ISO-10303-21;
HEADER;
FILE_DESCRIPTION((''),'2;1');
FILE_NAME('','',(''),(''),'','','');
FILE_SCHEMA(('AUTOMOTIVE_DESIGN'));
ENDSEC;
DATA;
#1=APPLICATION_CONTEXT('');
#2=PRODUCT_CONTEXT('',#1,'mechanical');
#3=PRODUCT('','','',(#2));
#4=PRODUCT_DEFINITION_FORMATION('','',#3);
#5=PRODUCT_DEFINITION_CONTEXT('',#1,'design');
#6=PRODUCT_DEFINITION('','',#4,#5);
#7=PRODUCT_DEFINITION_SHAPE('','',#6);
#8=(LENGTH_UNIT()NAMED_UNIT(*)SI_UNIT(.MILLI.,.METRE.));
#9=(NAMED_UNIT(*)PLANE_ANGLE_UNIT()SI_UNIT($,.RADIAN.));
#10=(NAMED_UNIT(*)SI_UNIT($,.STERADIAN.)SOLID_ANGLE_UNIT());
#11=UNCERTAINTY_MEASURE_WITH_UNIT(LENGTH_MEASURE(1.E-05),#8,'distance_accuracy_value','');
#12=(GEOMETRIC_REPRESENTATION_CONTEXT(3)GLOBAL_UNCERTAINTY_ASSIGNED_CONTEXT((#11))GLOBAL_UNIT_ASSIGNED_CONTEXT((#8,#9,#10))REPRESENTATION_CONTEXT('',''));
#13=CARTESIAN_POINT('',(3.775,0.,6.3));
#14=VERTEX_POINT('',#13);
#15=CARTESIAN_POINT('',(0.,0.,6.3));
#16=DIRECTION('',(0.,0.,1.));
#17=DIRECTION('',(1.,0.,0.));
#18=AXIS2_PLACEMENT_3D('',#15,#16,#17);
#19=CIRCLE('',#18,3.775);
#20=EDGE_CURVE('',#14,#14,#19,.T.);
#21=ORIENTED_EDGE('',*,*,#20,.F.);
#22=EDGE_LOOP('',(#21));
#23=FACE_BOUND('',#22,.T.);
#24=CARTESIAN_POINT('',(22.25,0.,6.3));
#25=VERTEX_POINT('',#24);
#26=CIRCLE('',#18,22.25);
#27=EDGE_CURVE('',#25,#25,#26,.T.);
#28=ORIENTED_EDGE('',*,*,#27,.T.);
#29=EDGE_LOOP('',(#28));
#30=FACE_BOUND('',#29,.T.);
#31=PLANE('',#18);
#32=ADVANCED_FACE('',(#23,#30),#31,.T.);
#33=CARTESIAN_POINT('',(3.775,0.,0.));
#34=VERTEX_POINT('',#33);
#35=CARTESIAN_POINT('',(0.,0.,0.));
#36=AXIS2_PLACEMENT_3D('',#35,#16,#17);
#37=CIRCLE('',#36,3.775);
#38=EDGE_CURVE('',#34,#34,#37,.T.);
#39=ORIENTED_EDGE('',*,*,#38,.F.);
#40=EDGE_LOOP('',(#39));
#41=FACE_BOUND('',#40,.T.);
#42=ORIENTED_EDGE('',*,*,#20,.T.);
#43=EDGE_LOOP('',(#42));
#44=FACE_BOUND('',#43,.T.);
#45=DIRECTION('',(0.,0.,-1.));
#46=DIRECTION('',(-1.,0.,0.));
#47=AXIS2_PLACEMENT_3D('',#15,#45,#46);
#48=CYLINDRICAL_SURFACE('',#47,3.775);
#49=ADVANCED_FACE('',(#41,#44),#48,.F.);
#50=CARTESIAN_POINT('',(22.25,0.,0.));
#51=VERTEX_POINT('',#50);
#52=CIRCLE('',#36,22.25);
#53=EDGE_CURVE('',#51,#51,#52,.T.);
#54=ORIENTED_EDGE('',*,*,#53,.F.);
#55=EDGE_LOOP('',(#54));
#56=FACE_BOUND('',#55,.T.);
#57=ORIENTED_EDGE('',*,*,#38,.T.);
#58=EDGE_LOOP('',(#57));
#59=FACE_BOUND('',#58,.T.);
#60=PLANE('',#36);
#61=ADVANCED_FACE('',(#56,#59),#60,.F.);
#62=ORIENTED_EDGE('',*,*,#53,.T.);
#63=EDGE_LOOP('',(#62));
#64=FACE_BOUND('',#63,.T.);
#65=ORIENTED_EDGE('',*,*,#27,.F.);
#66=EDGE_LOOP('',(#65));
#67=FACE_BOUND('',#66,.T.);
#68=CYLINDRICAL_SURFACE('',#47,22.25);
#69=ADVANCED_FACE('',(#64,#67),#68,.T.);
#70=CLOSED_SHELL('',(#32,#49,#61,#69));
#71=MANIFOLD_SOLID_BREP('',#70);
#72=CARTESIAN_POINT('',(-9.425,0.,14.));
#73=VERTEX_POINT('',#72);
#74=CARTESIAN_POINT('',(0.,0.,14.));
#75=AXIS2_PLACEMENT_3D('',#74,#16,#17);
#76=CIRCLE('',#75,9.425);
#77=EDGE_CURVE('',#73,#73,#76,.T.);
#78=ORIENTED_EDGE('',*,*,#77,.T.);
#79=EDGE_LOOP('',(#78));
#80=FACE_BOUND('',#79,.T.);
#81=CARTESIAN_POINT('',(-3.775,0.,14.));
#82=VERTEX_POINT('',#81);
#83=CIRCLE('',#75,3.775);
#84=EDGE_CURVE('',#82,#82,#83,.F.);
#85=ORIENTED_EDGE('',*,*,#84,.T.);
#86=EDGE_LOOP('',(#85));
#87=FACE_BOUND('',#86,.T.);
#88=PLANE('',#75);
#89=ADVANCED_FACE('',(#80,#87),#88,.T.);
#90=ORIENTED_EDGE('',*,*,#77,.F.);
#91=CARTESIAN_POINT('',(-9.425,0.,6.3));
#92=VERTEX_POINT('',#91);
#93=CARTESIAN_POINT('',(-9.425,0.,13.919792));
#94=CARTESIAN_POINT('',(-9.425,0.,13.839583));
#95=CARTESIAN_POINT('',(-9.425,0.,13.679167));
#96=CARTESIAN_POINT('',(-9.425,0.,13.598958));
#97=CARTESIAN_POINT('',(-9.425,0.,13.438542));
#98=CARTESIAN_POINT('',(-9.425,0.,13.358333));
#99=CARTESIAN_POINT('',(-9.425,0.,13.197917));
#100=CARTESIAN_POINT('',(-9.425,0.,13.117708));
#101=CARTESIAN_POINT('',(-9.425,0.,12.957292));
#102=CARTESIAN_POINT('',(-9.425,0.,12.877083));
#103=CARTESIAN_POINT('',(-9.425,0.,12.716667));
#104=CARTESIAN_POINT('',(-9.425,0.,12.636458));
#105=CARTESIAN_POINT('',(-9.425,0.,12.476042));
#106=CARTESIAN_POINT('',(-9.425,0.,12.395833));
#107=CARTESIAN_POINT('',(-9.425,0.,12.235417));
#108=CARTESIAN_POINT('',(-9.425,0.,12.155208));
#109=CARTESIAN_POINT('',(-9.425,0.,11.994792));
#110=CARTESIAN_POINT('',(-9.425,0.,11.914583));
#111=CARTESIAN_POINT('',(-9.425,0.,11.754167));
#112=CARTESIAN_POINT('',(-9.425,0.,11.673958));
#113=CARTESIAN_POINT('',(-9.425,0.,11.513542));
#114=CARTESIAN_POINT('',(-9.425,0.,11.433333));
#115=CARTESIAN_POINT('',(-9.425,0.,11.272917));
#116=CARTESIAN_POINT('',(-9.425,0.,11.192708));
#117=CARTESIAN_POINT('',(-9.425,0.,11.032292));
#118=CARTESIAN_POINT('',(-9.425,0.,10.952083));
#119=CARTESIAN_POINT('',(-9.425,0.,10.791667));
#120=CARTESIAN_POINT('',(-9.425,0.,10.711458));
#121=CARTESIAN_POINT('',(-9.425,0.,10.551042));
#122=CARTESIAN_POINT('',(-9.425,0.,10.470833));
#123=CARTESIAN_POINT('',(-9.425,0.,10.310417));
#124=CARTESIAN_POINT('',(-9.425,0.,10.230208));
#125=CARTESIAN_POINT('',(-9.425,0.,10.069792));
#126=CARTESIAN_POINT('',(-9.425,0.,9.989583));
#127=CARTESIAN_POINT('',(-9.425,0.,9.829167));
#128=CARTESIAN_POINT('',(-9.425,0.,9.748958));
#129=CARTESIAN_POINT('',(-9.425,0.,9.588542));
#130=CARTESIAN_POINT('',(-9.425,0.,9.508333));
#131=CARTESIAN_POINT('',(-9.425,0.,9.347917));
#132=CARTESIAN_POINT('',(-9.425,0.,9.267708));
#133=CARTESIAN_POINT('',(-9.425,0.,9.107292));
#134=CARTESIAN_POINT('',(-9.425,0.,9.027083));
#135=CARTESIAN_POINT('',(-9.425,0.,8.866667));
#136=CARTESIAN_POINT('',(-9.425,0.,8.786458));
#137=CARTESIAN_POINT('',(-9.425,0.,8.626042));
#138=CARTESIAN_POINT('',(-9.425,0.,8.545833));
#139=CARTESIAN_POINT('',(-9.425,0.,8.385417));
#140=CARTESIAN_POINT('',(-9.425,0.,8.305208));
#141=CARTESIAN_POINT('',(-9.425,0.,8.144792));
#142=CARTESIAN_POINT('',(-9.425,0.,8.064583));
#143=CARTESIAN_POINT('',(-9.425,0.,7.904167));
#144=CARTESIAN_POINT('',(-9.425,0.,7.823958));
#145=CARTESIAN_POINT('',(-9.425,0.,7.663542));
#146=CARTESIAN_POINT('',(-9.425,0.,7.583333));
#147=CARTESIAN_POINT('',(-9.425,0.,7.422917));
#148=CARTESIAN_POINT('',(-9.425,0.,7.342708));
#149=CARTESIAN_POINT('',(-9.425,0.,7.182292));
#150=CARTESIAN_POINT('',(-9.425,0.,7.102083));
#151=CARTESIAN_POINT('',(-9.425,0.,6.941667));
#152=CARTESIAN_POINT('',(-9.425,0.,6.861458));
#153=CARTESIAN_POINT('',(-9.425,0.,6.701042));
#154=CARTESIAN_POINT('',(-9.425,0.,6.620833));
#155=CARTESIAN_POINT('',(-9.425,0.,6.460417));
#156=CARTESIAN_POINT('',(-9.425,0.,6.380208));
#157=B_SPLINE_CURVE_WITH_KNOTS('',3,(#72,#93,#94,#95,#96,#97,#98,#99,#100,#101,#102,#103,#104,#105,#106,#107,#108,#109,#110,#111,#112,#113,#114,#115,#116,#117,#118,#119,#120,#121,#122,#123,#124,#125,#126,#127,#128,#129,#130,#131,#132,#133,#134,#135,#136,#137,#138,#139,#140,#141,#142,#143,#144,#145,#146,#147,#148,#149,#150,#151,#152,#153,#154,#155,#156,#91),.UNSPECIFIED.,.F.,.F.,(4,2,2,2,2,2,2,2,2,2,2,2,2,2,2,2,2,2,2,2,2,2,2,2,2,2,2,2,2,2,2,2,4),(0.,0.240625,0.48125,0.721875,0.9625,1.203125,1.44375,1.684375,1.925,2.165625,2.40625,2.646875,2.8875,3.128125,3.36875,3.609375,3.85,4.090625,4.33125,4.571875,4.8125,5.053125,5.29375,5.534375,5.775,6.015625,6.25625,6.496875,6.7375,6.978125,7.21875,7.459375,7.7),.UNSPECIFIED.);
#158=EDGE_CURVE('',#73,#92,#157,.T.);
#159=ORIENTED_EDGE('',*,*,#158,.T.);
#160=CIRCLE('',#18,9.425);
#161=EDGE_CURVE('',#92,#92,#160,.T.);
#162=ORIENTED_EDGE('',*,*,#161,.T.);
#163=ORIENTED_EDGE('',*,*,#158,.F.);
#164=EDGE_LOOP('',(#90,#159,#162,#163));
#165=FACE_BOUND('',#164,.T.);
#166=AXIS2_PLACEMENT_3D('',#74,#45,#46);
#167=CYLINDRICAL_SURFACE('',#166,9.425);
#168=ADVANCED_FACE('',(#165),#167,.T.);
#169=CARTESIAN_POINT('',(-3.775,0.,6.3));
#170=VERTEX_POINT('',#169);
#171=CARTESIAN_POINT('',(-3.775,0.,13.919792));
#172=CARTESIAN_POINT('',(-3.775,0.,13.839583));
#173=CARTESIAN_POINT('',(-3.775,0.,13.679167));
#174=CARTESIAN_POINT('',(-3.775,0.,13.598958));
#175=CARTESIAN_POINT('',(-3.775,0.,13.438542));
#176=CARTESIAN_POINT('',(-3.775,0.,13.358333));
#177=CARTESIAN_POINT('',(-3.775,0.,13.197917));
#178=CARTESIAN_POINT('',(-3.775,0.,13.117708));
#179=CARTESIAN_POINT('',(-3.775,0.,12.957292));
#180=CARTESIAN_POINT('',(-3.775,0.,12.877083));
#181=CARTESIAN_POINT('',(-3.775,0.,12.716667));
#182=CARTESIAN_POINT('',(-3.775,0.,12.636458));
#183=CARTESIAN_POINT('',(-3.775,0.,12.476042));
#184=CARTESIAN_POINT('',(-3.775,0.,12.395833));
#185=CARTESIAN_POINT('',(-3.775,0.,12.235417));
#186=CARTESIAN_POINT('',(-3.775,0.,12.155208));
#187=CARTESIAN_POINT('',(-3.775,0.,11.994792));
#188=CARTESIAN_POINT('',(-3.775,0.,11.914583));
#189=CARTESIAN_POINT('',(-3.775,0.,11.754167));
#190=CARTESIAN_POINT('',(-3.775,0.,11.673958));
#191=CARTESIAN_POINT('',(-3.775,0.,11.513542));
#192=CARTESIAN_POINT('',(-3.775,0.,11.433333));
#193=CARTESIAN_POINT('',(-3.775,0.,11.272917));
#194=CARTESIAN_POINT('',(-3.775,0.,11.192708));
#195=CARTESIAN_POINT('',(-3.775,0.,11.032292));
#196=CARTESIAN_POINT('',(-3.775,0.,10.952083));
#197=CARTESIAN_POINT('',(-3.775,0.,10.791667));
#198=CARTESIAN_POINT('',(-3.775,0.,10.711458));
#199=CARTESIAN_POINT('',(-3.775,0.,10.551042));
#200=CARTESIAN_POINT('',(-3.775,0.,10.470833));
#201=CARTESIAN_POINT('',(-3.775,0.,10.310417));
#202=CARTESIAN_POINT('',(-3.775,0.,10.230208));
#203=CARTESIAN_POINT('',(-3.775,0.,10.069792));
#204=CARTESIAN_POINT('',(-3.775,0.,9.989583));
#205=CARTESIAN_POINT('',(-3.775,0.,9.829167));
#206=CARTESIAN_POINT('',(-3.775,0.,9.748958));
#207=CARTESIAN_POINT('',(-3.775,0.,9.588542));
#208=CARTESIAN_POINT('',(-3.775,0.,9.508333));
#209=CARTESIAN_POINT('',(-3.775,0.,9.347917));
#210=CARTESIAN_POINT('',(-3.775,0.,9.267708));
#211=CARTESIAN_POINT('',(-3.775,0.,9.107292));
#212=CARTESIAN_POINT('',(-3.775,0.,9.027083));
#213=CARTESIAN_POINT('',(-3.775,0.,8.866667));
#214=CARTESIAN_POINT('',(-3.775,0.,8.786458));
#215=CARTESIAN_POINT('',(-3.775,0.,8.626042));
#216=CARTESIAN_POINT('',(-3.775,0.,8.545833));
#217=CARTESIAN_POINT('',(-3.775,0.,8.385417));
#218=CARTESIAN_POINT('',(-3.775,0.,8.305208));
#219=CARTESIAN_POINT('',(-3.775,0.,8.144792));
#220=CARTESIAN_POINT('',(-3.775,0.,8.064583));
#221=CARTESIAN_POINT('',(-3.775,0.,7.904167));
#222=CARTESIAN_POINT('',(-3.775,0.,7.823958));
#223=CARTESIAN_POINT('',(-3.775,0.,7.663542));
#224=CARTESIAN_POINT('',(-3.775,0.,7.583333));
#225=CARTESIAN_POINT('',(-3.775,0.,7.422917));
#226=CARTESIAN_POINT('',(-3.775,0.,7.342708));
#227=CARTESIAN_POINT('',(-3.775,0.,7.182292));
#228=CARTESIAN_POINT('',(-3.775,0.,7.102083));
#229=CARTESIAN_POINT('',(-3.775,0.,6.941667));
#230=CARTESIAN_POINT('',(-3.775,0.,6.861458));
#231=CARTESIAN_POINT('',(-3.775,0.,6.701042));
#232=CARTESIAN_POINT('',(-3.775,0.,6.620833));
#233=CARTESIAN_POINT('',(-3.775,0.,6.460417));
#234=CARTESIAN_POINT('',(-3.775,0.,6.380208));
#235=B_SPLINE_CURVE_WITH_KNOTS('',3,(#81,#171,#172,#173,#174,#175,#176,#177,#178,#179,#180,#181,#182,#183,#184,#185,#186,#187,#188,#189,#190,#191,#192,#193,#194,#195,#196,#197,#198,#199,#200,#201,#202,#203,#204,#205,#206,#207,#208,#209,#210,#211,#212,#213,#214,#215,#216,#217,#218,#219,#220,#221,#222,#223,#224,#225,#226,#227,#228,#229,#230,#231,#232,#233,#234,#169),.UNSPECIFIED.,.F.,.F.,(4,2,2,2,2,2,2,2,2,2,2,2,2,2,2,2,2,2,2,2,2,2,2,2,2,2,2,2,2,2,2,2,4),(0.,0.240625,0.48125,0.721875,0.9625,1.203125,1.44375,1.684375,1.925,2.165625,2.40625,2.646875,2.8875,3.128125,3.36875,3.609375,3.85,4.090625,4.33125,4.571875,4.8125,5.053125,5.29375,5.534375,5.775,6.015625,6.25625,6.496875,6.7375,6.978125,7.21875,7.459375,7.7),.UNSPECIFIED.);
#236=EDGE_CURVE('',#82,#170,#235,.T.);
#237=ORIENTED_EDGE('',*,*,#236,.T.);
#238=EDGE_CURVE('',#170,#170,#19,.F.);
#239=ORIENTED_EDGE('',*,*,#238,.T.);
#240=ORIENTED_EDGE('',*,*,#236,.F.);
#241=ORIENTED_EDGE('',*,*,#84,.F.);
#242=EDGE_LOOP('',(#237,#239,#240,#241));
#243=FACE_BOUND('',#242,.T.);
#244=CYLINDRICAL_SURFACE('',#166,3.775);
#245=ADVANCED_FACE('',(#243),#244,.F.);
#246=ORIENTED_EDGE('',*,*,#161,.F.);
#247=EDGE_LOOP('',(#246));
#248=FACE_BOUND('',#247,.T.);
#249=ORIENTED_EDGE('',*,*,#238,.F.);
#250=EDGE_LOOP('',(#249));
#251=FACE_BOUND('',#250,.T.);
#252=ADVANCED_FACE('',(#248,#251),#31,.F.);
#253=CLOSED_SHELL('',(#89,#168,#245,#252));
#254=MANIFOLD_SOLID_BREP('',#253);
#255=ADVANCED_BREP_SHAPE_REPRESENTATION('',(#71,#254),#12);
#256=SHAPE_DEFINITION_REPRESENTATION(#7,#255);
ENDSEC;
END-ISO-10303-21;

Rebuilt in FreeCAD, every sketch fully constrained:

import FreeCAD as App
import Part
import Sketcher
from FreeCAD import Vector
Q = App.Units.Quantity

doc = App.newDocument("Part")
body = doc.addObject("PartDesign::Body", "Body")

# Sketch on XY plane
sketch1 = body.newObject("Sketcher::SketchObject", "Sketch")
sketch1.AttachmentSupport = (doc.getObject("XY_Plane"), [""])
sketch1.MapMode = "FlatFace"
sketch1.addGeometry([
    Part.Circle(Vector(0, 0, 0), Vector(0, 0, 1), 22.25),
    Part.Circle(Vector(0, 0, 0), Vector(0, 0, 1), 3.775),
], False)
sketch1.addConstraint([
    Sketcher.Constraint("Coincident", 0, 3, -1, 1),
    Sketcher.Constraint("Coincident", 1, 3, -1, 1),
    Sketcher.Constraint("Diameter", 0, Q("44.5 mm")),
    Sketcher.Constraint("Diameter", 1, Q("7.55 mm")),
])
pad1 = body.newObject("PartDesign::Pad", "Pad")
pad1.Profile = sketch1
pad1.Length = 6.3
body2 = doc.addObject("PartDesign::Body", "Body001")

# Sketch on XY plane
sketch2 = body2.newObject("Sketcher::SketchObject", "Sketch001")
sketch2.AttachmentSupport = (doc.getObject("XY_Plane001"), [""])
sketch2.MapMode = "FlatFace"
sketch2.AttachmentOffset = App.Placement(Vector(0, 0, 6.3), App.Rotation())
sketch2.addGeometry([
    Part.Circle(Vector(0, 0, 0), Vector(0, 0, 1), 9.425),
    Part.Circle(Vector(0, 0, 0), Vector(0, 0, 1), 3.775),
], False)
sketch2.addConstraint([
    Sketcher.Constraint("Coincident", 0, 3, -1, 1),
    Sketcher.Constraint("Coincident", 1, 3, -1, 1),
    Sketcher.Constraint("Diameter", 0, Q("18.85 mm")),
    Sketcher.Constraint("Diameter", 1, Q("7.55 mm")),
])
pad2 = body2.newObject("PartDesign::Pad", "Pad001")
pad2.Profile = sketch2
pad2.Length = 7.7

doc.recompute()
